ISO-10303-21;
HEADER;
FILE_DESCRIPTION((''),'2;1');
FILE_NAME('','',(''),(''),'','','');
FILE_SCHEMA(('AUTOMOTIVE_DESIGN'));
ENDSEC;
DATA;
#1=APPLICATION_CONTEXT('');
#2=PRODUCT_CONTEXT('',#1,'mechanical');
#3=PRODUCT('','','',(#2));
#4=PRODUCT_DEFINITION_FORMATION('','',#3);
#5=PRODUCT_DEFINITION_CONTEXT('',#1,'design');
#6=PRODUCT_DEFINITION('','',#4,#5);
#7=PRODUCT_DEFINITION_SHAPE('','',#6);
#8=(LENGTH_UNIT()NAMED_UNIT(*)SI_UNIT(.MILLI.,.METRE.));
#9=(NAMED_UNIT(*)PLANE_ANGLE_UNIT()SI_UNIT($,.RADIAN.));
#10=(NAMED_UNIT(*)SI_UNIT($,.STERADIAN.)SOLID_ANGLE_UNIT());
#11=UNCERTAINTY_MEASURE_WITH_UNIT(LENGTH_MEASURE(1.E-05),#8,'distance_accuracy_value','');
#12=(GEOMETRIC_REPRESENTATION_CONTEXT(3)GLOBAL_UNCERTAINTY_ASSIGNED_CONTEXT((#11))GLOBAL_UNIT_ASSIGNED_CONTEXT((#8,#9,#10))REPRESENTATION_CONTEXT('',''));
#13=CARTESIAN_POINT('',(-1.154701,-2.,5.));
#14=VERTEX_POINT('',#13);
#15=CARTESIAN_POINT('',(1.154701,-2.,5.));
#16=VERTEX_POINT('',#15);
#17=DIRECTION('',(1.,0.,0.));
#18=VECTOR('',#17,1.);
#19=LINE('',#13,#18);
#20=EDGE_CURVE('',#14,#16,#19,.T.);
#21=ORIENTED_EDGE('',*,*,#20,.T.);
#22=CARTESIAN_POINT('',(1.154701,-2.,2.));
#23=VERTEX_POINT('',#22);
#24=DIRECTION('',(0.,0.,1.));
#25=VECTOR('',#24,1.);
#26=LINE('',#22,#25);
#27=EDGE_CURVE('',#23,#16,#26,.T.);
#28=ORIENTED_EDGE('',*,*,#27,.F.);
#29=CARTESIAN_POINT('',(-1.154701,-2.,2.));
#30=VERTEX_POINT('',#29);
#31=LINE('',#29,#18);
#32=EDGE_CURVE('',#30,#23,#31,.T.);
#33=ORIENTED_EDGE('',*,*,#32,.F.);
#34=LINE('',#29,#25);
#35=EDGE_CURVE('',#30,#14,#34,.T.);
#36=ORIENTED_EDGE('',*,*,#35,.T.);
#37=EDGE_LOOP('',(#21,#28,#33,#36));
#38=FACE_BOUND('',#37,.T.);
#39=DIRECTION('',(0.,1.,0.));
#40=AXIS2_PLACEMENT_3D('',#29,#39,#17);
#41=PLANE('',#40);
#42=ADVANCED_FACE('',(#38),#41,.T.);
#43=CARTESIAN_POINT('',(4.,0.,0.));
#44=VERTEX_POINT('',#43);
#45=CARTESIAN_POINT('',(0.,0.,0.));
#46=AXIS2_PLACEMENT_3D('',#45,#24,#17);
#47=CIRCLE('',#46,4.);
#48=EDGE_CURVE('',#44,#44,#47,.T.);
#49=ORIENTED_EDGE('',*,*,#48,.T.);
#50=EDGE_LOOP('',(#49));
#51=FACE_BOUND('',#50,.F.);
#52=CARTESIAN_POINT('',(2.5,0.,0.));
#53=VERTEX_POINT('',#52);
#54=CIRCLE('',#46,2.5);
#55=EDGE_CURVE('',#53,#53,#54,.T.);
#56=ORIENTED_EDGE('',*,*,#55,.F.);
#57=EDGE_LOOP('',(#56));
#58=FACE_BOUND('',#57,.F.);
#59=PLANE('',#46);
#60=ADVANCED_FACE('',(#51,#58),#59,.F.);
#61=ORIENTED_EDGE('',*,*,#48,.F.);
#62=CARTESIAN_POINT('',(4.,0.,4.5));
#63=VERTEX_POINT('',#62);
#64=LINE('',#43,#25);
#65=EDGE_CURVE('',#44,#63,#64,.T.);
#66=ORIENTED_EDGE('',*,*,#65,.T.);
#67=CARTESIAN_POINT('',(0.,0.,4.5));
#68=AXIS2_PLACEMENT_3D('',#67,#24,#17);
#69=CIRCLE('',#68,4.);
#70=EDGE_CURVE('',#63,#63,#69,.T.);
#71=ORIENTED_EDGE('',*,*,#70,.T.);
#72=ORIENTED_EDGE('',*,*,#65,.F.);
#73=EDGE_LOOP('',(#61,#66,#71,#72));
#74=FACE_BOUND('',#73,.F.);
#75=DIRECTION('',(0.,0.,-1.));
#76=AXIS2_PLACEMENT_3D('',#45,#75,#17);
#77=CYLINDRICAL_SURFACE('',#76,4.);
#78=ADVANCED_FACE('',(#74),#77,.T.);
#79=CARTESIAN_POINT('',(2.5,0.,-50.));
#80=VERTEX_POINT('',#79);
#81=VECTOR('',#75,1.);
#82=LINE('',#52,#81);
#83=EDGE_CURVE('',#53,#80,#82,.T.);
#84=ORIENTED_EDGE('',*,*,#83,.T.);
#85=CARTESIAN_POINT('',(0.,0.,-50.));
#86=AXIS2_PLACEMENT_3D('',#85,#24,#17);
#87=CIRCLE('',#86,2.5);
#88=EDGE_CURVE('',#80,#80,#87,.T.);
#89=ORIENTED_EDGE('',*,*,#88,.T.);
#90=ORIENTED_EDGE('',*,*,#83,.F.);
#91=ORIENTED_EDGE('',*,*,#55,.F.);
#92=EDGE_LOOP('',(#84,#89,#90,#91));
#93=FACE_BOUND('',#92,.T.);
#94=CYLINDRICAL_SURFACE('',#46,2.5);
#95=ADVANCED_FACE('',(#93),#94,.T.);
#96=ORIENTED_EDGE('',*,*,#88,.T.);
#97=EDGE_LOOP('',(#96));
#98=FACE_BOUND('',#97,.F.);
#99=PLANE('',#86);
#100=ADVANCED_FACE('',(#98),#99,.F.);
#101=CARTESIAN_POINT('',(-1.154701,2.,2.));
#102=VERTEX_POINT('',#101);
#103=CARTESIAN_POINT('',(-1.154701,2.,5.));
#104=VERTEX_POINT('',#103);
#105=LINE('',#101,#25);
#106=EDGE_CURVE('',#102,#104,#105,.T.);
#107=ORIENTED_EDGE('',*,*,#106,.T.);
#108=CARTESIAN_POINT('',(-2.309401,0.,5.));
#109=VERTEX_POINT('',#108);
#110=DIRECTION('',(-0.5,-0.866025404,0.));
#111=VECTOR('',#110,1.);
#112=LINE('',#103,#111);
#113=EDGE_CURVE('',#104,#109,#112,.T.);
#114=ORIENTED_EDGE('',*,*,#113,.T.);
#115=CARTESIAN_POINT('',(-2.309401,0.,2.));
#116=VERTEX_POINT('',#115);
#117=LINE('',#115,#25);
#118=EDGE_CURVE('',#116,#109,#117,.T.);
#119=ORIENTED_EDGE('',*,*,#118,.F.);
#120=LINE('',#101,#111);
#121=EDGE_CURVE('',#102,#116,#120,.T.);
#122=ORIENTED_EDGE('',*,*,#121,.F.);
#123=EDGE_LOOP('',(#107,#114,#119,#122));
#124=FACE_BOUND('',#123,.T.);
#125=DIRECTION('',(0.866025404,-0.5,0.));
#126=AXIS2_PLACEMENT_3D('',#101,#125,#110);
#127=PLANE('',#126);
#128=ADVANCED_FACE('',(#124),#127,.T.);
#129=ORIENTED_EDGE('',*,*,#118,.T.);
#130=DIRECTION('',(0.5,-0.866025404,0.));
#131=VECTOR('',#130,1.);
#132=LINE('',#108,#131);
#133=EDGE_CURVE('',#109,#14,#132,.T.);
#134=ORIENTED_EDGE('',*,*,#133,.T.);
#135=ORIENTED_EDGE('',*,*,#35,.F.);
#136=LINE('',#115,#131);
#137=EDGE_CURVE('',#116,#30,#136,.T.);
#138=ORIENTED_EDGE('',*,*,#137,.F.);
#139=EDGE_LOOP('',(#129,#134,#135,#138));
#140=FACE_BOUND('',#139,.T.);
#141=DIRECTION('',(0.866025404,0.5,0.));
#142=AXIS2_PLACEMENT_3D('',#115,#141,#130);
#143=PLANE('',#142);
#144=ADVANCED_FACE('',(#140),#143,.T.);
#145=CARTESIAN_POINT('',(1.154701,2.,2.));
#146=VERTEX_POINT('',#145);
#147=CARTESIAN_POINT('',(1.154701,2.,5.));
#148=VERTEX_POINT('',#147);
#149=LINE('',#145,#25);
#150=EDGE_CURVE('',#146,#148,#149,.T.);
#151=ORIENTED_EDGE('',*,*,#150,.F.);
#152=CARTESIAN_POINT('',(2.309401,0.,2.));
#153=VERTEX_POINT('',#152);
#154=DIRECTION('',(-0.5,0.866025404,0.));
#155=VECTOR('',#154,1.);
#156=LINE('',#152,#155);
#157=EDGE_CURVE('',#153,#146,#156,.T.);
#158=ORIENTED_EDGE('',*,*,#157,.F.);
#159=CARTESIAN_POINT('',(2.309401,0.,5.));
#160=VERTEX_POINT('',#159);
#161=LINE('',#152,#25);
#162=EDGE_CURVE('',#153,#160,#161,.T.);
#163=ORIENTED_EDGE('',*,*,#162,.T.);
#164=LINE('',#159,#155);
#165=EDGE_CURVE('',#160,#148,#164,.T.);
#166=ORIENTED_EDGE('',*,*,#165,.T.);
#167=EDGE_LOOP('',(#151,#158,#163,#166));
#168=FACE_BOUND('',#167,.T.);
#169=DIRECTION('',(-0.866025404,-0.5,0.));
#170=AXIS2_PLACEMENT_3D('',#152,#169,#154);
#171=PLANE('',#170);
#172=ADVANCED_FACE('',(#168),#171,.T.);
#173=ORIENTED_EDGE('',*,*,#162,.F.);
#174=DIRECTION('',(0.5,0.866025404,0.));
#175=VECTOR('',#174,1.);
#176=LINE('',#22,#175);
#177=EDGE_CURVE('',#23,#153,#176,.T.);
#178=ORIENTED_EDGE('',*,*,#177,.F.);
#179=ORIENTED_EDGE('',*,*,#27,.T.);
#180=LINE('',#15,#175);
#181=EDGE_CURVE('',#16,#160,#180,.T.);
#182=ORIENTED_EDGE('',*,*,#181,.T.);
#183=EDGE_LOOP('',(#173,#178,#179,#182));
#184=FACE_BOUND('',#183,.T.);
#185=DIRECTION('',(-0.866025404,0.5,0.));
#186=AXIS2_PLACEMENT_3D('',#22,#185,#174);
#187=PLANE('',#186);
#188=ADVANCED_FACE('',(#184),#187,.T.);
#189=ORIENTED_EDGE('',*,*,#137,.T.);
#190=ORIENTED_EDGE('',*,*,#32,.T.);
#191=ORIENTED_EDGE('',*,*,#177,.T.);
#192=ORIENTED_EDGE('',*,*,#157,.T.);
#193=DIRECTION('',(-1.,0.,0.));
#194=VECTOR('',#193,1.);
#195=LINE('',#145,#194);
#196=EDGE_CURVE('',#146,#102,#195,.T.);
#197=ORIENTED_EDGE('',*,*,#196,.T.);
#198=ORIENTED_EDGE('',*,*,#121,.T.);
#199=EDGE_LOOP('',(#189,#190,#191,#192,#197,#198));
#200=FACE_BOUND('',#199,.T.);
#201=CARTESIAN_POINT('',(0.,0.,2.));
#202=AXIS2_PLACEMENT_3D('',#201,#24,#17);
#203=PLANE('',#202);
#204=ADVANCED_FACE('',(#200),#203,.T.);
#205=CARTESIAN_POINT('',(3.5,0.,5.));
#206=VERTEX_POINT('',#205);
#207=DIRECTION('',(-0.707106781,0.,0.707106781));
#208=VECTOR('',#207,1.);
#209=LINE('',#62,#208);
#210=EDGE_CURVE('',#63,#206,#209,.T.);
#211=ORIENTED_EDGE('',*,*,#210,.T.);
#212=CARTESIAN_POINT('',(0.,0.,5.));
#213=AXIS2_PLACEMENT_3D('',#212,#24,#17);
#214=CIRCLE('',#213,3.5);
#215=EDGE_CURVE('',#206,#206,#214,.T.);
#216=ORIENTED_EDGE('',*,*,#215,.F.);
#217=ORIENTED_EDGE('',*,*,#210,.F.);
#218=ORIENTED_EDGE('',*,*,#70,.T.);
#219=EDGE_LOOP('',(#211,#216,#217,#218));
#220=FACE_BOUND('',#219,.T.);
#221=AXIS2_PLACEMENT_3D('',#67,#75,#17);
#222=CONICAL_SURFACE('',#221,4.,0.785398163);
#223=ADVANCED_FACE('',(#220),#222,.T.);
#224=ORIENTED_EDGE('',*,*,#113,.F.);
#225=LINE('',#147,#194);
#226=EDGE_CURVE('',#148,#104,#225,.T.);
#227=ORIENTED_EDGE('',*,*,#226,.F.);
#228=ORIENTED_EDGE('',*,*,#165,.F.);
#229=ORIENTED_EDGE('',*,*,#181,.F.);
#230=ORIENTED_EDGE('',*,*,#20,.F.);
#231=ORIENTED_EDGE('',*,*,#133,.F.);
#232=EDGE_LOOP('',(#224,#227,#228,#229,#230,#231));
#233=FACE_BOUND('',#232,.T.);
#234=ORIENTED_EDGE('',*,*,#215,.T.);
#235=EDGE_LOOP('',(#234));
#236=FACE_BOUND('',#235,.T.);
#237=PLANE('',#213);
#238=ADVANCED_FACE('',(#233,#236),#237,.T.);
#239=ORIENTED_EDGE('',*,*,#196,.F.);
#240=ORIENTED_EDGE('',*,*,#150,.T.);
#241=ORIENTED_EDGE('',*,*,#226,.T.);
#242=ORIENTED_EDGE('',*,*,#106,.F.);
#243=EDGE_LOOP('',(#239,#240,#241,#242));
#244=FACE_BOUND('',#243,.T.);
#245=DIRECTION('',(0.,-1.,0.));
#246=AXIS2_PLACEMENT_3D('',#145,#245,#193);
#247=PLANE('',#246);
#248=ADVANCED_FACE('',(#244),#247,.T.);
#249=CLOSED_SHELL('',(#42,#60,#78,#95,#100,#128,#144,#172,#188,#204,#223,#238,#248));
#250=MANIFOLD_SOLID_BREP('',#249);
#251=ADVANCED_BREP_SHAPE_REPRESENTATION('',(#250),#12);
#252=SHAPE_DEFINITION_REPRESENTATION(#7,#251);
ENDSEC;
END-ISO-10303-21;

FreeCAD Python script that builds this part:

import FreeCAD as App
import Part
import Sketcher
from FreeCAD import Vector
Q = App.Units.Quantity


def edges_at(feature, points):
    """Names of the edges that pass closest to the given points."""
    edges = feature.Shape.Edges
    near = lambda p: min(range(len(edges)), key=lambda i: edges[i].distToShape(Part.Vertex(*p))[0])
    return sorted({f"Edge{near(p) + 1}" for p in points})


def add_polygon(sketch, points):
    """Adds a closed chain of lines whose ends are joined by coincident constraints."""
    first, n = sketch.GeometryCount, len(points)
    for a, b in zip(points, points[1:] + points[:1]):
        sketch.addGeometry(Part.LineSegment(App.Vector(*a, 0), App.Vector(*b, 0)), False)
    for i in range(n):
        sketch.addConstraint(Sketcher.Constraint("Coincident", first + i, 2, first + (i + 1) % n, 1))

doc = App.newDocument("Part")
params = doc.addObject("Spreadsheet::Sheet", "Params")
for row, (alias, value) in enumerate([
    ("sketch1_diameter", "8 mm"),
    ("pad1_length", "5 mm"),
    ("pocket1_length", "3 mm"),
    ("sketch3_diameter", "5 mm"),
    ("pad2_length", "50 mm"),
    ("chamfer_size", "0.5 mm"),
], start=1):
    params.set(f"A{row}", alias)
    params.set(f"B{row}", "=" + value)
    params.setAlias(f"B{row}", alias)

body = doc.addObject("PartDesign::Body", "Body")

sketch1 = body.newObject("Sketcher::SketchObject", "Sketch")
sketch1.AttachmentSupport = (doc.getObject("XY_Plane"), [""])
sketch1.MapMode = "FlatFace"
sketch1.addGeometry(Part.Circle(Vector(0, 0, 0), Vector(0, 0, 1), 4), False)
sketch1.addConstraint(Sketcher.Constraint("Coincident", 0, 3, -1, 1))
sketch1.addConstraint(Sketcher.Constraint("Diameter", 0, 8.0))
sketch1.setExpression("Constraints[1]", "Params.sketch1_diameter")
pad1 = body.newObject("PartDesign::Pad", "Pad")
pad1.Profile = sketch1
pad1.setExpression("Length", "Params.pad1_length")

sketch2 = body.newObject("Sketcher::SketchObject", "Sketch001")
sketch2.AttachmentSupport = (doc.getObject("XY_Plane"), [""])
sketch2.MapMode = "FlatFace"
sketch2.AttachmentOffset = App.Placement(Vector(0, 0, 2), App.Rotation())
add_polygon(sketch2, [(-1.2, -2), (1.2, -2), (2.3, 0), (1.2, 2), (-1.2, 2), (-2.3, 0)])
sketch2.addConstraint(Sketcher.Constraint("Horizontal", 0))
sketch2.addConstraint(Sketcher.Constraint("Horizontal", 3))
sketch2.addConstraint(Sketcher.Constraint("Symmetric", 0, 2, 3, 2, -1, 1))
sketch2.addConstraint(Sketcher.Constraint("Symmetric", 1, 2, 4, 2, -1, 1))
sketch2.addConstraint(Sketcher.Constraint("PointOnObject", 1, 2, -1))
sketch2.addConstraint(Sketcher.Constraint("Parallel", 2, 5))
sketch2.addConstraint(Sketcher.Constraint("Vertical", 0, 2, 2, 2))
sketch2.addConstraint(Sketcher.Constraint("Angle", 1, Q("60 deg")))
sketch2.addConstraint(Sketcher.Constraint("DistanceY", 0, 2, -1, 1, 2.0))
sketch2.addConstraint(Sketcher.Constraint("DistanceX", 0, 1, 0, 2, 2.309401))
pocket1 = body.newObject("PartDesign::Pocket", "Pocket")
pocket1.Profile = sketch2
pocket1.setExpression("Length", "Params.pocket1_length")
pocket1.Reversed = True

sketch3 = body.newObject("Sketcher::SketchObject", "Sketch002")
sketch3.AttachmentSupport = (doc.getObject("XY_Plane"), [""])
sketch3.MapMode = "FlatFace"
sketch3.addGeometry(Part.Circle(Vector(0, 0, 0), Vector(0, 0, 1), 2.5), False)
sketch3.addConstraint(Sketcher.Constraint("Coincident", 0, 3, -1, 1))
sketch3.addConstraint(Sketcher.Constraint("Diameter", 0, 5.0))
sketch3.setExpression("Constraints[1]", "Params.sketch3_diameter")
pad2 = body.newObject("PartDesign::Pad", "Pad001")
pad2.Profile = sketch3
pad2.setExpression("Length", "Params.pad2_length")
pad2.Reversed = True
doc.recompute()

chamfer = body.newObject("PartDesign::Chamfer", "Chamfer")
chamfer.Base = (pad2, edges_at(pad2, [(-4, 0, 5)]))
chamfer.setExpression("Size", "Params.chamfer_size")

doc.recompute()
